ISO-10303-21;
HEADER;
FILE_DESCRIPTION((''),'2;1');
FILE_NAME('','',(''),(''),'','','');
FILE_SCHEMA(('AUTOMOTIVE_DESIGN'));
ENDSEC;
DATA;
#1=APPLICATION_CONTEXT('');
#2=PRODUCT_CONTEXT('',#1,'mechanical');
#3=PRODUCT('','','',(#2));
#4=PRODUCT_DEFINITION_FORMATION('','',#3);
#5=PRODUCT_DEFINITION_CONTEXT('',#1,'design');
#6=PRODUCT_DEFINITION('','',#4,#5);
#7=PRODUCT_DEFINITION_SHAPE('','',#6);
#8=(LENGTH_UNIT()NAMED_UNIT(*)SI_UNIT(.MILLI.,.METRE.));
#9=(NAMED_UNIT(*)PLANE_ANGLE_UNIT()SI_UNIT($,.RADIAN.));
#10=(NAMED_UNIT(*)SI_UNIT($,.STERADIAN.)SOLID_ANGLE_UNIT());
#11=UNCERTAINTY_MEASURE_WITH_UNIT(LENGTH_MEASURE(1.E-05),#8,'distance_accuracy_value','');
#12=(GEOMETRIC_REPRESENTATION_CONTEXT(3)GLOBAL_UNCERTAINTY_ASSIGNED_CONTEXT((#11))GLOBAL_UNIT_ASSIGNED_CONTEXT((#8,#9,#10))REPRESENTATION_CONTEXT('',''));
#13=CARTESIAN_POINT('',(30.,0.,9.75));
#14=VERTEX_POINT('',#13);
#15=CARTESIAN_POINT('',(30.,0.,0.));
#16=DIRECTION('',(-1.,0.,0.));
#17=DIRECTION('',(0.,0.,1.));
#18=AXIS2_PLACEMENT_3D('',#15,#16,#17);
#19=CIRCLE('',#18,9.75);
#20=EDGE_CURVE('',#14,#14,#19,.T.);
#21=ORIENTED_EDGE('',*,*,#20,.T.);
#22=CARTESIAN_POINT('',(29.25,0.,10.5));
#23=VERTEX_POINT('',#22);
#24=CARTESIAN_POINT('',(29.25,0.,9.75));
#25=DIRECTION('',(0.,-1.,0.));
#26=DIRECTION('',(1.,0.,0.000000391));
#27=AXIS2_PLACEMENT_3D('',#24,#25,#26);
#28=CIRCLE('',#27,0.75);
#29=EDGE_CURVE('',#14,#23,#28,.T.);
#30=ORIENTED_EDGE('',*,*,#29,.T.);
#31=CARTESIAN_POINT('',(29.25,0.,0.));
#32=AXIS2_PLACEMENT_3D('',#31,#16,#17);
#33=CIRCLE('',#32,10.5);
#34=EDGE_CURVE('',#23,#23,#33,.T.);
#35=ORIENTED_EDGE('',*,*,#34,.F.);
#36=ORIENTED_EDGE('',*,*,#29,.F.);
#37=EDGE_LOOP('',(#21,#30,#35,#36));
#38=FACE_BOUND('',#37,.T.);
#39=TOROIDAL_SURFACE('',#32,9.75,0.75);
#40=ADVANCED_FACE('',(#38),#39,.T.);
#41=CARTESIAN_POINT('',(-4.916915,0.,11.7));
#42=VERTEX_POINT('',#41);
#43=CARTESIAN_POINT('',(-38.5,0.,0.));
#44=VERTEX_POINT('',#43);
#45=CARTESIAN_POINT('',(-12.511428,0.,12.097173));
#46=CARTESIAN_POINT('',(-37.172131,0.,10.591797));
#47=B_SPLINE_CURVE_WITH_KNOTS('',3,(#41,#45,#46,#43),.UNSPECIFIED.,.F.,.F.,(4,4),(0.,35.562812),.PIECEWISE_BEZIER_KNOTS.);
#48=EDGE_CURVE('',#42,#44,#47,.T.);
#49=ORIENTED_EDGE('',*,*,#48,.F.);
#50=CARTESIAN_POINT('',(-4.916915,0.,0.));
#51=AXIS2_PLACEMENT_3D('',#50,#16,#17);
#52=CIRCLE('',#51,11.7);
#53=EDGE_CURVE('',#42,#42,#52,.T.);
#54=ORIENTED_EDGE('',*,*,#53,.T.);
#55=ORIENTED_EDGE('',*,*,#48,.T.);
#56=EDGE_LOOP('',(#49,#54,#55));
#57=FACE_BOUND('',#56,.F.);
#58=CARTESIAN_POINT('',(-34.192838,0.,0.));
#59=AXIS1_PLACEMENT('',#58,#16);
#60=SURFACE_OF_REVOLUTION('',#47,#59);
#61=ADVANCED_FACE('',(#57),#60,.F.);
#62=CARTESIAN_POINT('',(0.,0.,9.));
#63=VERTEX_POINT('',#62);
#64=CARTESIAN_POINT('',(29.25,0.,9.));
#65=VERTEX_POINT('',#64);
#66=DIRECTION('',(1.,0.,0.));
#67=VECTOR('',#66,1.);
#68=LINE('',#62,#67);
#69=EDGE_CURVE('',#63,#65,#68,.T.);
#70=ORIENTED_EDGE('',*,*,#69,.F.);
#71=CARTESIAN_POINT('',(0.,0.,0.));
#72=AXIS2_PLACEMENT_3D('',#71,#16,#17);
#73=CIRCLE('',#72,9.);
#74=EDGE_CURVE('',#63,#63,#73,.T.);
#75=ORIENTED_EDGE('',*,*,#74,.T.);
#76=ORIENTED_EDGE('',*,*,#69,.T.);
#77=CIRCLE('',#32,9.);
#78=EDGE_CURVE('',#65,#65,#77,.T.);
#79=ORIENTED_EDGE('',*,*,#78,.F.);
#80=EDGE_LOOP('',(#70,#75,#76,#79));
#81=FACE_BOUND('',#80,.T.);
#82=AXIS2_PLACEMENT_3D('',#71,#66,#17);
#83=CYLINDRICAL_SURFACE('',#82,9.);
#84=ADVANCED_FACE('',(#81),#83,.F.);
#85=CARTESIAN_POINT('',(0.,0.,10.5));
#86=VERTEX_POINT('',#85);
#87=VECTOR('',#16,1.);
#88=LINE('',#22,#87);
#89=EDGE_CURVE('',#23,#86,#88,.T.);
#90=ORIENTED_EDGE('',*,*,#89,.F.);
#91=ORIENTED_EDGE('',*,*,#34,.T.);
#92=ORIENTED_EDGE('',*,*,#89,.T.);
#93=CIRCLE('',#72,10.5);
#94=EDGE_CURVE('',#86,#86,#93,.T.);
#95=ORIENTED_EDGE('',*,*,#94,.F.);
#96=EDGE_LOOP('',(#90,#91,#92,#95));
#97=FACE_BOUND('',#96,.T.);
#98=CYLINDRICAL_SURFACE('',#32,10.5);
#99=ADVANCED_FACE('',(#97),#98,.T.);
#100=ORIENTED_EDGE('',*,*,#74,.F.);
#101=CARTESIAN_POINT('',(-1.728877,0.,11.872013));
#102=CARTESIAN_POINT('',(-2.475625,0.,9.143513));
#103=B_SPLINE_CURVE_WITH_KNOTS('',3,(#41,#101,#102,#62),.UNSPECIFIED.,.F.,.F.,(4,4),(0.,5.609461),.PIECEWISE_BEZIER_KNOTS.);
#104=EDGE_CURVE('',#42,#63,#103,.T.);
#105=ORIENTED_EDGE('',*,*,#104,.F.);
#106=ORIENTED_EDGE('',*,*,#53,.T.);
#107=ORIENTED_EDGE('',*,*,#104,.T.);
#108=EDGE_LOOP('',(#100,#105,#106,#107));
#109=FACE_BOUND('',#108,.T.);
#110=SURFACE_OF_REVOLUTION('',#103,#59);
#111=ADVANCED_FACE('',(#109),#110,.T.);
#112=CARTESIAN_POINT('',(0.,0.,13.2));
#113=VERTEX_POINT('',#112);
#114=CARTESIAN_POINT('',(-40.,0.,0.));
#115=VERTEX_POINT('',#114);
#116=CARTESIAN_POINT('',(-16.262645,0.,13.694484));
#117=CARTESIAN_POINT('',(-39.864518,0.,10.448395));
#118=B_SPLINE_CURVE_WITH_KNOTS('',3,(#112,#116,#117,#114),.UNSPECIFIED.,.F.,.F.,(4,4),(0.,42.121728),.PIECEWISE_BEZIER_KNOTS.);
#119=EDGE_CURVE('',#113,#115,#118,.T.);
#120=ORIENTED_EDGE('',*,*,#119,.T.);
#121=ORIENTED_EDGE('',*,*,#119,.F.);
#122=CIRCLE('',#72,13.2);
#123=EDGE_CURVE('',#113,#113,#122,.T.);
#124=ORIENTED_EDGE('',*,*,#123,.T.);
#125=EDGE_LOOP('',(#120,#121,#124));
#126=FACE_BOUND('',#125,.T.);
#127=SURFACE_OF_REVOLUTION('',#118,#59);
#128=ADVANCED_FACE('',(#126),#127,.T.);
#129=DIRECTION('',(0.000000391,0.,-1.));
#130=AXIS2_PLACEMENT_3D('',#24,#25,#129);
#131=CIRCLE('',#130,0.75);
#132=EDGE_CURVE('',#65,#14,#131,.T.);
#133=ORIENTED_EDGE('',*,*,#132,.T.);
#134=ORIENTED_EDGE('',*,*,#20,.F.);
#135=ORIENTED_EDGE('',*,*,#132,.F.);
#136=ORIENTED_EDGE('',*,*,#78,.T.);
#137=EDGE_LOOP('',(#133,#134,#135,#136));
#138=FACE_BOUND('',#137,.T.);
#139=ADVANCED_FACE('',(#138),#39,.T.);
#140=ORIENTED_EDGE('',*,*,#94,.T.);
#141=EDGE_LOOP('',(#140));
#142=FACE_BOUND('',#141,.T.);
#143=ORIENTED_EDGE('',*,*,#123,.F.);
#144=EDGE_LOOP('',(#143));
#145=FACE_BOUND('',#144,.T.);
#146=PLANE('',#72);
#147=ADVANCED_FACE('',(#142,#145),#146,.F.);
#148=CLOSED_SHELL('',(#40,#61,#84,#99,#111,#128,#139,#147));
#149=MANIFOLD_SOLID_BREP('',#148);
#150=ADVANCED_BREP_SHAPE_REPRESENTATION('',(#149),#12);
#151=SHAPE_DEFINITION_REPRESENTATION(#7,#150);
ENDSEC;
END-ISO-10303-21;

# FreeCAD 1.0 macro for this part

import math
import FreeCAD as App
import Part
import Sketcher

doc = App.newDocument("Part")
body = doc.addObject("PartDesign::Body", "Body")

# Sketch on XZ plane
sketch1 = doc.addObject("Sketcher::SketchObject", "Sketch")
body.addObject(sketch1)
sketch1.AttachmentSupport = (doc.XZ_Plane, [""])
sketch1.MapMode = "FlatFace"
sketch1.addGeometry(Part.LineSegment(App.Vector(29.25, 10.5, 0), App.Vector(0, 10.5, 0)), False)
sketch1.addGeometry(Part.LineSegment(App.Vector(0, 10.5, 0), App.Vector(0, 13.2, 0)), False)
sketch1.addGeometry(Part.BSplineCurve([App.Vector(0, 13.2, 0), App.Vector(-16.262645, 13.694484, 0), App.Vector(-39.864518, 10.448395, 0), App.Vector(-40, 0, 0)], [4, 4], [0, 42.121728], False, 3, [1, 1, 1, 1], False), False)
sketch1.addGeometry(Part.LineSegment(App.Vector(-40, 0, 0), App.Vector(-38.5, 0, 0)), False)
sketch1.addGeometry(Part.BSplineCurve([App.Vector(-4.916915, 11.7, 0), App.Vector(-12.511428, 12.097173, 0), App.Vector(-37.172131, 10.591797, 0), App.Vector(-38.5, 0, 0)], [4, 4], [0, 35.562812], False, 3, [1, 1, 1, 1], False), False)
sketch1.addGeometry(Part.BSplineCurve([App.Vector(-4.916915, 11.7, 0), App.Vector(-1.728877, 11.872013, 0), App.Vector(-2.475625, 9.143513, 0), App.Vector(0, 9, 0)], [4, 4], [0, 5.609461], False, 3, [1, 1, 1, 1], False), False)
sketch1.addGeometry(Part.LineSegment(App.Vector(0, 9, 0), App.Vector(29.25, 9, 0)), False)
sketch1.addGeometry(Part.ArcOfCircle(Part.Circle(App.Vector(29.25, 9.75, 0), App.Vector(0, 0, 1), 0.75), math.radians(-89.999978), math.radians(-0.000022)), False)
sketch1.addGeometry(Part.ArcOfCircle(Part.Circle(App.Vector(29.25, 9.75, 0), App.Vector(0, 0, 1), 0.75), math.radians(0.000022), math.radians(89.999978)), False)
sketch1.addConstraint(Sketcher.Constraint("Block", 2))
sketch1.addConstraint(Sketcher.Constraint("Block", 4))
sketch1.addConstraint(Sketcher.Constraint("Block", 5))
sketch1.addConstraint(Sketcher.Constraint("Coincident", 0, 2, 1, 1))
sketch1.addConstraint(Sketcher.Constraint("Coincident", 1, 2, 2, 1))
sketch1.addConstraint(Sketcher.Constraint("Coincident", 2, 2, 3, 1))
sketch1.addConstraint(Sketcher.Constraint("Coincident", 3, 2, 4, 2))
sketch1.addConstraint(Sketcher.Constraint("Coincident", 5, 2, 6, 1))
sketch1.addConstraint(Sketcher.Constraint("Tangent", 6, 2, 7, 1))
sketch1.addConstraint(Sketcher.Constraint("Tangent", 7, 2, 8, 1))
sketch1.addConstraint(Sketcher.Constraint("Tangent", 8, 2, 0, 1))
sketch1.addConstraint(Sketcher.Constraint("Horizontal", 0))
sketch1.addConstraint(Sketcher.Constraint("Vertical", 1))
sketch1.addConstraint(Sketcher.Constraint("Horizontal", 6))
sketch1.addConstraint(Sketcher.Constraint("Equal", 7, 8))
sketch1.addConstraint(Sketcher.Constraint("Horizontal", 8, 3, 7, 2))
sketch1.addConstraint(Sketcher.Constraint("Radius", 7, 0.75))
sketch1.addConstraint(Sketcher.Constraint("DistanceX", -1, 1, 7, 2, 30.0))
revolution = doc.addObject("PartDesign::Revolution", "Revolution")
body.addObject(revolution)
revolution.Profile = sketch1
revolution.ReferenceAxis = (sketch1, ["H_Axis"])
revolution.Angle = 360

doc.recompute()
